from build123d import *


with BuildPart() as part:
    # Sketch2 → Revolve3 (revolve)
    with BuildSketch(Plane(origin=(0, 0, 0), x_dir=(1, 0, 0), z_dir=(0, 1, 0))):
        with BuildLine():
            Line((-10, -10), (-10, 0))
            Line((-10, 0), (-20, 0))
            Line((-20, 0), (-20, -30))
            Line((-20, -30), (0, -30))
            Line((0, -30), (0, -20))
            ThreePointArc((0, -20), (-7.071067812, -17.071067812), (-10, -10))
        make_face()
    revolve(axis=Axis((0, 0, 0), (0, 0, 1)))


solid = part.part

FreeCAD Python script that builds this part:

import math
import FreeCAD as App
import Part
import Sketcher

doc = App.newDocument("Part")
body = doc.addObject("PartDesign::Body", "Body")

sketch1 = doc.addObject("Sketcher::SketchObject", "Sketch")
body.addObject(sketch1)
sketch1.AttachmentSupport = (doc.XZ_Plane, [""])
sketch1.MapMode = "FlatFace"
sketch1.addGeometry([
    Part.LineSegment(App.Vector(-10, 10, 0), App.Vector(-10, 0, 0)),
    Part.LineSegment(App.Vector(-10, 0, 0), App.Vector(-20, 0, 0)),
    Part.LineSegment(App.Vector(-20, 0, 0), App.Vector(-20, 30, 0)),
    Part.LineSegment(App.Vector(-20, 30, 0), App.Vector(0, 30, 0)),
    Part.LineSegment(App.Vector(0, 30, 0), App.Vector(0, 20, 0)),
    Part.ArcOfCircle(Part.Circle(App.Vector(0, 10, 0), App.Vector(0, 0, 1), 10), math.radians(90), math.radians(180)),
], False)
sketch1.addConstraint([
    Sketcher.Constraint("Coincident", 0, 2, 1, 1),
    Sketcher.Constraint("Coincident", 1, 2, 2, 1),
    Sketcher.Constraint("Coincident", 2, 2, 3, 1),
    Sketcher.Constraint("Coincident", 3, 2, 4, 1),
    Sketcher.Constraint("Coincident", 4, 2, 5, 1),
    Sketcher.Constraint("Tangent", 5, 2, 0, 1),
    Sketcher.Constraint("Vertical", 0),
    Sketcher.Constraint("Horizontal", 1),
    Sketcher.Constraint("Vertical", 2),
    Sketcher.Constraint("Horizontal", 3),
    Sketcher.Constraint("Vertical", 4),
    Sketcher.Constraint("PointOnObject", 5, 3, -2),
    Sketcher.Constraint("PointOnObject", 0, 2, -1),
    Sketcher.Constraint("PointOnObject", 3, 2, -2),
    Sketcher.Constraint("Equal", 1, 0),
    Sketcher.Constraint("Equal", 0, 4),
    Sketcher.Constraint("Radius", 5, 10.0),
    Sketcher.Constraint("DistanceX", 1, 2, 1, 1, 10.0),
])
revolution = doc.addObject("PartDesign::Revolution", "Revolution")
body.addObject(revolution)
revolution.Profile = sketch1
revolution.ReferenceAxis = (sketch1, ["V_Axis"])
revolution.Angle = 360

doc.recompute()
